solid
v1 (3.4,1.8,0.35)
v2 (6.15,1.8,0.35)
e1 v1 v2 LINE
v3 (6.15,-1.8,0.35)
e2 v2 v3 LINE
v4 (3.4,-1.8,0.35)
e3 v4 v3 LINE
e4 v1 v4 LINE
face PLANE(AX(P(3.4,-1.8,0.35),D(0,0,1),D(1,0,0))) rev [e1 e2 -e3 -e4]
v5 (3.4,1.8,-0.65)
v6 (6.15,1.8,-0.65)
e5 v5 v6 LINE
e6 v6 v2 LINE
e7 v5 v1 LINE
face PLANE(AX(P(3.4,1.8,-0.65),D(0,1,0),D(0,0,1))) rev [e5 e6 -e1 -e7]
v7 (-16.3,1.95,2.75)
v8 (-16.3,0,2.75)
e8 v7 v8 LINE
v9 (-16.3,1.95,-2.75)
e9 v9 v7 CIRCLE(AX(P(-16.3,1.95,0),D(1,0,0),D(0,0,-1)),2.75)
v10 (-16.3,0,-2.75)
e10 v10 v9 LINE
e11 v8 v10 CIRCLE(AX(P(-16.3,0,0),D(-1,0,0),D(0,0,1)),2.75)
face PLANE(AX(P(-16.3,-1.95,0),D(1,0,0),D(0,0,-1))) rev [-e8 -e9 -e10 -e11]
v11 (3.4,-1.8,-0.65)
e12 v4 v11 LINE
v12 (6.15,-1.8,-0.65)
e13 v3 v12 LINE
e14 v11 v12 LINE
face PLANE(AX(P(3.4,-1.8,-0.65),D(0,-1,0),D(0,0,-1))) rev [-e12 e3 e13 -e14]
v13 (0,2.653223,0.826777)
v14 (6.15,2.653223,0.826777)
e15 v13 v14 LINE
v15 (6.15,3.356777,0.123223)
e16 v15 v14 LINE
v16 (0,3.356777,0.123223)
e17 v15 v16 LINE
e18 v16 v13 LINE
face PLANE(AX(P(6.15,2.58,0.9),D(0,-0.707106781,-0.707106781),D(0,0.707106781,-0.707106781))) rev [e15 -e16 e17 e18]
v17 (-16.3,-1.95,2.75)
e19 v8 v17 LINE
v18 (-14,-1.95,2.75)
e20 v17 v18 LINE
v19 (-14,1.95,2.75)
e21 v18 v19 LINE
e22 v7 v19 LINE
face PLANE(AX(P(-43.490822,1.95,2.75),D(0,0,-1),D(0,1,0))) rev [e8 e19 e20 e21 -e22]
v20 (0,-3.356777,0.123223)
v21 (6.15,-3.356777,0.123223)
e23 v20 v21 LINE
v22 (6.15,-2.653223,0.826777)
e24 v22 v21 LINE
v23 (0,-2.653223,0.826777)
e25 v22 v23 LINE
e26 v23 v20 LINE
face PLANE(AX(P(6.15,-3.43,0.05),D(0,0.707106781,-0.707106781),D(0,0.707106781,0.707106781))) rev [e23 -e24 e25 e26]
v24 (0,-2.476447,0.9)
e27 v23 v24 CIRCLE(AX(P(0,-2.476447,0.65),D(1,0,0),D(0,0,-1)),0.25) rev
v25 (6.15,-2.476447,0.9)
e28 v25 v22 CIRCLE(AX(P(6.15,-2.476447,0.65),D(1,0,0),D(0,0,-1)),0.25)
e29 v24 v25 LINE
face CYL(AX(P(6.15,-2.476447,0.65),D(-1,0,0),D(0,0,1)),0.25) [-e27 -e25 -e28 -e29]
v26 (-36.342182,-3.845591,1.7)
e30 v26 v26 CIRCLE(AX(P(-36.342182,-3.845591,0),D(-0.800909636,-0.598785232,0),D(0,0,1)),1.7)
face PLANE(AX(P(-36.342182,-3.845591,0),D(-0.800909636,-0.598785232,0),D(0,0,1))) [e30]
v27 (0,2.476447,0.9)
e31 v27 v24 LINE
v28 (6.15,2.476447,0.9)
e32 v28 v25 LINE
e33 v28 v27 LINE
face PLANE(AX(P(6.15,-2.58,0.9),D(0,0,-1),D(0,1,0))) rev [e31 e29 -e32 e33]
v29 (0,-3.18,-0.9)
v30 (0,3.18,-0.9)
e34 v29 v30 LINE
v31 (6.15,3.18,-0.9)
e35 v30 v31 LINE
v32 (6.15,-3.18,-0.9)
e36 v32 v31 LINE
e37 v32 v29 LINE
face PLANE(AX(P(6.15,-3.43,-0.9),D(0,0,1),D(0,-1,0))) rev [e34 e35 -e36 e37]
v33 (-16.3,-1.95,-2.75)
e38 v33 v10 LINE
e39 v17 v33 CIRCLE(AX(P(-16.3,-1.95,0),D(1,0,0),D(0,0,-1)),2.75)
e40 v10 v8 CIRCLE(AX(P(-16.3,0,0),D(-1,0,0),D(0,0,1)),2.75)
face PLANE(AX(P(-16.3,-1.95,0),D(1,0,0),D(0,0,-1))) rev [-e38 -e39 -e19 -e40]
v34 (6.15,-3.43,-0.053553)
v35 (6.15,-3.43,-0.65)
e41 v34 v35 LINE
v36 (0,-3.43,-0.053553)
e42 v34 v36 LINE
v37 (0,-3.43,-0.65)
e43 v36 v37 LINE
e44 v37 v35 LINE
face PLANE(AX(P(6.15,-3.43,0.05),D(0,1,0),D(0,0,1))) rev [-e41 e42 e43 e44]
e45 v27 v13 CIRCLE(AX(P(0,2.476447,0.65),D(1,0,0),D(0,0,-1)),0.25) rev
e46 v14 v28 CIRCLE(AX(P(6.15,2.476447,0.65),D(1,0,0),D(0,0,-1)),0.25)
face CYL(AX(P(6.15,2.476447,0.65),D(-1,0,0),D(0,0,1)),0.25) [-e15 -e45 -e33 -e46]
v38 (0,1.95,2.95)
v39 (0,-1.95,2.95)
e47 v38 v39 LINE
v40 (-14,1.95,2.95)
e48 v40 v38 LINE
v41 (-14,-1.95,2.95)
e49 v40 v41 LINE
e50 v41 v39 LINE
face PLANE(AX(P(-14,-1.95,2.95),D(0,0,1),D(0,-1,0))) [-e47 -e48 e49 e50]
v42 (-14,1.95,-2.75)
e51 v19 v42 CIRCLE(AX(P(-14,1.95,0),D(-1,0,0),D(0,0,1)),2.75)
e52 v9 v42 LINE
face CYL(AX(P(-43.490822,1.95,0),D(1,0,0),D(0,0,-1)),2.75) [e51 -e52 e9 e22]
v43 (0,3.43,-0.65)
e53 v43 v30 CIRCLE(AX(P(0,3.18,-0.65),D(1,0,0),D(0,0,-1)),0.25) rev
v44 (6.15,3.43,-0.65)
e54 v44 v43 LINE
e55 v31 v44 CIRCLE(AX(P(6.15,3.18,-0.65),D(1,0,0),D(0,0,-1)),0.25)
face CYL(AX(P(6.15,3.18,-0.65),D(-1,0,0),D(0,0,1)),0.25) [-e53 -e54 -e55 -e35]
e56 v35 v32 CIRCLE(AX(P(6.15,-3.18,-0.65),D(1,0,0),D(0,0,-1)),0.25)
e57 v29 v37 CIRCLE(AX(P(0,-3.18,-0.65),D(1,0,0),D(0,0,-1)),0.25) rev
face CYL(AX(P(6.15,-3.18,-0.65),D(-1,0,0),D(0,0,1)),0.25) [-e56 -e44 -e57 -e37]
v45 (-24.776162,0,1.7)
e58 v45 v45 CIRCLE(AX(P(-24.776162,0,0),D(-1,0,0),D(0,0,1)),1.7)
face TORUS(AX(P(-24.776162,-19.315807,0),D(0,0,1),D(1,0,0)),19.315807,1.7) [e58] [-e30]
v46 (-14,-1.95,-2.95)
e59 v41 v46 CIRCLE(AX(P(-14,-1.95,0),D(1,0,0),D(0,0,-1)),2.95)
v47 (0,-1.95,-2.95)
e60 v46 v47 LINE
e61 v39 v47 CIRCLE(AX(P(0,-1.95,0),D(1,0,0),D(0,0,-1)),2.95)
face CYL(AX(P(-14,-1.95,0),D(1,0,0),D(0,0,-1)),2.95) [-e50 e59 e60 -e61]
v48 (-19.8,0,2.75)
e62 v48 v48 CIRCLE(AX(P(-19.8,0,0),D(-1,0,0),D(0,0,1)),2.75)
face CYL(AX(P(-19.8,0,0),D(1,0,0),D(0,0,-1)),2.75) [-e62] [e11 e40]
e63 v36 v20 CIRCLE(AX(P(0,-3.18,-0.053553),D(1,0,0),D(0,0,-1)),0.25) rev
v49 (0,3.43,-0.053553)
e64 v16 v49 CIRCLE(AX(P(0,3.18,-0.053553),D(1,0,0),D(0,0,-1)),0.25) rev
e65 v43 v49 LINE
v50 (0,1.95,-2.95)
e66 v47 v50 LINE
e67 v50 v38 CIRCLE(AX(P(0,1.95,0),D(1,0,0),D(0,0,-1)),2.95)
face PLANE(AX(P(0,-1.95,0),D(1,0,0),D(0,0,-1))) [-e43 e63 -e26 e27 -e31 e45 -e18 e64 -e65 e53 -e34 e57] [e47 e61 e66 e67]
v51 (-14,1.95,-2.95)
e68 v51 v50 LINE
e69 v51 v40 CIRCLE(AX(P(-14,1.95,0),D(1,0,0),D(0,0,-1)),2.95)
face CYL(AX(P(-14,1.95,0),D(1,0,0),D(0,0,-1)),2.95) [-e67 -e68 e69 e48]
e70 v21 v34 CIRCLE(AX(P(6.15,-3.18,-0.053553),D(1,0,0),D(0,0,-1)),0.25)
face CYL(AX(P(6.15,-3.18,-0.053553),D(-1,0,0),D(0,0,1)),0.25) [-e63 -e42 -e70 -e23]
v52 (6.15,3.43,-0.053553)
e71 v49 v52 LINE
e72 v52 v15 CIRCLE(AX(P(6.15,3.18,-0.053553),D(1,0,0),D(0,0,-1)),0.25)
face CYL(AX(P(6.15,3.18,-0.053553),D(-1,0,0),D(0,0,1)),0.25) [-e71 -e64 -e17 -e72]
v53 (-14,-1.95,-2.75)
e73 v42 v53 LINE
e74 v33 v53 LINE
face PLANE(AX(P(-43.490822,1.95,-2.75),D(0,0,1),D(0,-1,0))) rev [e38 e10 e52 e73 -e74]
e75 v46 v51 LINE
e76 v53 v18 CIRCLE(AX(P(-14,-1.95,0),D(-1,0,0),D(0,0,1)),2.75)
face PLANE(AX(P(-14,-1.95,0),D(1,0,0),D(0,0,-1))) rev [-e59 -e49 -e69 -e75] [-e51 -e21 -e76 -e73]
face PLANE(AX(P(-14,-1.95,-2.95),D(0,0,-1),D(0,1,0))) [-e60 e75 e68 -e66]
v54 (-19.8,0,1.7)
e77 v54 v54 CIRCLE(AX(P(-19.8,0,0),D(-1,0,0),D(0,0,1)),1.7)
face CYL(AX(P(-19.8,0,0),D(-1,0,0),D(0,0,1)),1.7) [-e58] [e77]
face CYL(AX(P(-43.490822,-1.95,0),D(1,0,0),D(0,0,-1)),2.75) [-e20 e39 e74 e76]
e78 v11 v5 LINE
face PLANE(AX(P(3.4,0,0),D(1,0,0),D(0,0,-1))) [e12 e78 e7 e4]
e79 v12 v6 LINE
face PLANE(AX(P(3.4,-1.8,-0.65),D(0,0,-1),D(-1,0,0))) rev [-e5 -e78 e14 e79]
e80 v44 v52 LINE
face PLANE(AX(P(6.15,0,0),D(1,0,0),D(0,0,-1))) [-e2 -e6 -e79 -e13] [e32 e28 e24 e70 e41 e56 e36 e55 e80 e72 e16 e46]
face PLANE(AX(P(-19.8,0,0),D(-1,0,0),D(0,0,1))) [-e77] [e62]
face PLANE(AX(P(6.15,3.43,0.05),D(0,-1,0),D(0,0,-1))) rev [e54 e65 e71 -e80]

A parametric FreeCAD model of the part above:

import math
import FreeCAD as App
import Part
import Sketcher

V = App.Vector
Q = App.Units.Quantity


def edges_at(feature, points):
    """Names of the edges that pass closest to the given points."""
    edges = feature.Shape.Edges
    near = lambda p: min(range(len(edges)), key=lambda i: edges[i].distToShape(Part.Vertex(*p))[0])
    return sorted({f"Edge{near(p) + 1}" for p in points})

doc = App.newDocument("Part")
body = doc.addObject("PartDesign::Body", "Body")

sketch1 = body.newObject("Sketcher::SketchObject", "Sketch")
sketch1.AttachmentSupport = (doc.getObject("YZ_Plane"), [""])
sketch1.MapMode = "FlatFace"
sketch1.addGeometry([
    Part.LineSegment(V(1.95, 2.95, 0), V(-1.95, 2.95, 0)),
    Part.ArcOfCircle(Part.Circle(V(-1.95, 0, 0), V(0, 0, 1), 2.95), math.radians(90), math.radians(270)),
    Part.LineSegment(V(-1.95, -2.95, 0), V(1.95, -2.95, 0)),
    Part.ArcOfCircle(Part.Circle(V(1.95, 0, 0), V(0, 0, 1), 2.95), math.radians(-90), math.radians(90)),
], False)
sketch1.addConstraint([
    Sketcher.Constraint("Tangent", 0, 2, 1, 1),
    Sketcher.Constraint("Tangent", 1, 2, 2, 1),
    Sketcher.Constraint("Tangent", 2, 2, 3, 1),
    Sketcher.Constraint("Tangent", 3, 2, 0, 1),
    Sketcher.Constraint("Horizontal", 0),
    Sketcher.Constraint("Horizontal", 2),
    Sketcher.Constraint("Symmetric", 1, 3, 3, 3, -1, 1),
    Sketcher.Constraint("Radius", 1, Q("2.95 mm")),
    Sketcher.Constraint("DistanceX", 0, 2, 0, 1, Q("3.9 mm")),
])
pad1 = body.newObject("PartDesign::Pad", "Pad")
pad1.Profile = sketch1
pad1.Length = 14
pad1.Reversed = True

sketch2 = body.newObject("Sketcher::SketchObject", "Sketch001")
sketch2.AttachmentSupport = (doc.getObject("YZ_Plane"), [""])
sketch2.MapMode = "FlatFace"
sketch2.AttachmentOffset = App.Placement(V(0, 0, -14), App.Rotation())
sketch2.addGeometry([
    Part.LineSegment(V(-1.95, 2.75, 0), V(1.95, 2.75, 0)),
    Part.ArcOfCircle(Part.Circle(V(1.95, 0, 0), V(0, 0, 1), 2.75), math.radians(-90), math.radians(90)),
    Part.LineSegment(V(1.95, -2.75, 0), V(-1.95, -2.75, 0)),
    Part.ArcOfCircle(Part.Circle(V(-1.95, 0, 0), V(0, 0, 1), 2.75), math.radians(90), math.radians(270)),
], False)
sketch2.addConstraint([
    Sketcher.Constraint("Tangent", 0, 2, 1, 2),
    Sketcher.Constraint("Tangent", 1, 1, 2, 1),
    Sketcher.Constraint("Tangent", 2, 2, 3, 2),
    Sketcher.Constraint("Tangent", 3, 1, 0, 1),
    Sketcher.Constraint("Horizontal", 0),
    Sketcher.Constraint("Horizontal", 2),
    Sketcher.Constraint("Symmetric", 1, 3, 3, 3, -1, 1),
    Sketcher.Constraint("Radius", 1, Q("2.75 mm")),
    Sketcher.Constraint("DistanceX", 0, 1, 0, 2, Q("3.9 mm")),
])
pad2 = body.newObject("PartDesign::Pad", "Pad001")
pad2.Profile = sketch2
pad2.Length = 2.3
pad2.Reversed = True

sketch3 = body.newObject("Sketcher::SketchObject", "Sketch002")
sketch3.AttachmentSupport = (doc.getObject("YZ_Plane"), [""])
sketch3.MapMode = "FlatFace"
sketch3.AttachmentOffset = App.Placement(V(0, 0, -16.3), App.Rotation())
sketch3.addGeometry(Part.Circle(V(0, 0, 0), V(0, 0, 1), 2.75), False)
sketch3.addConstraint([
    Sketcher.Constraint("Coincident", 0, 3, -1, 1),
    Sketcher.Constraint("Diameter", 0, Q("5.5 mm")),
])
pad3 = body.newObject("PartDesign::Pad", "Pad002")
pad3.Profile = sketch3
pad3.Length = 3.5
pad3.Reversed = True

sketch4 = body.newObject("Sketcher::SketchObject", "Sketch003")
sketch4.AttachmentSupport = (doc.getObject("YZ_Plane"), [""])
sketch4.MapMode = "FlatFace"
sketch4.AttachmentOffset = App.Placement(V(0, 0, -19.8), App.Rotation())
sketch4.addGeometry(Part.Circle(V(0, 0, 0), V(0, 0, 1), 1.7), False)
sketch4.addConstraint([
    Sketcher.Constraint("Coincident", 0, 3, -1, 1),
    Sketcher.Constraint("Diameter", 0, Q("3.4 mm")),
])

sketch5 = body.newObject("Sketcher::SketchObject", "Sketch004")
sketch5.AttachmentSupport = (doc.getObject("XY_Plane"), [""])
sketch5.MapMode = "FlatFace"
sketch5.addGeometry([
    Part.LineSegment(V(-19.8, 0, 0), V(-24.776162, 0, 0)),
    Part.ArcOfCircle(Part.Circle(V(-24.776162, -19.315807, 0), V(0, 0, 1), 19.315807), math.radians(90), math.radians(126.782946)),
], False)
sketch5.addConstraint([
    Sketcher.Constraint("Tangent", 0, 2, 1, 1),
    Sketcher.Constraint("Horizontal", 0),
    Sketcher.Constraint("PointOnObject", 0, 1, -1),
    Sketcher.Constraint("DistanceX", 0, 1, -1, 1, Q("19.8 mm")),
    Sketcher.Constraint("Radius", 1, Q("19.315807 mm")),
    Sketcher.Constraint("DistanceX", 0, 2, 0, 1, Q("4.976162 mm")),
    Sketcher.Constraint("DistanceX", 1, 2, -1, 1, Q("36.342182 mm")),
])
doc.recompute()

additivepipe = body.newObject("PartDesign::AdditivePipe", "AdditivePipe")
additivepipe.Profile = sketch4
additivepipe.Spine = (sketch5, ["Edge1", "Edge2"])

sketch6 = body.newObject("Sketcher::SketchObject", "Sketch005")
sketch6.AttachmentSupport = (doc.getObject("YZ_Plane"), [""])
sketch6.MapMode = "FlatFace"
sketch6.addGeometry([
    Part.LineSegment(V(-2.58, 0.9, 0), V(-3.43, 0.05, 0)),
    Part.LineSegment(V(-3.43, 0.05, 0), V(-3.43, -0.9, 0)),
    Part.LineSegment(V(-3.43, -0.9, 0), V(3.43, -0.9, 0)),
    Part.LineSegment(V(3.43, -0.9, 0), V(3.43, 0.05, 0)),
    Part.LineSegment(V(3.43, 0.05, 0), V(2.58, 0.9, 0)),
    Part.LineSegment(V(2.58, 0.9, 0), V(-2.58, 0.9, 0)),
], False)
sketch6.addConstraint([
    Sketcher.Constraint("Coincident", 0, 2, 1, 1),
    Sketcher.Constraint("Coincident", 1, 2, 2, 1),
    Sketcher.Constraint("Coincident", 2, 2, 3, 1),
    Sketcher.Constraint("Coincident", 3, 2, 4, 1),
    Sketcher.Constraint("Coincident", 4, 2, 5, 1),
    Sketcher.Constraint("Coincident", 5, 2, 0, 1),
    Sketcher.Constraint("Vertical", 1),
    Sketcher.Constraint("Horizontal", 2),
    Sketcher.Constraint("Vertical", 3),
    Sketcher.Constraint("Horizontal", 5),
    Sketcher.Constraint("Symmetric", 0, 2, 3, 2, -2),
    Sketcher.Constraint("Perpendicular", 0, 4),
    Sketcher.Constraint("Equal", 0, 4),
    Sketcher.Constraint("DistanceX", 2, 1, 2, 2, Q("6.86 mm")),
    Sketcher.Constraint("DistanceX", 5, 2, 5, 1, Q("5.16 mm")),
    Sketcher.Constraint("DistanceY", 1, 2, 1, 1, Q("0.95 mm")),
    Sketcher.Constraint("DistanceY", 1, 2, -1, 1, Q("0.9 mm")),
])
pad4 = body.newObject("PartDesign::Pad", "Pad003")
pad4.Profile = sketch6
pad4.Length = 6.15
doc.recompute()

fillet = body.newObject("PartDesign::Fillet", "Fillet")
fillet.Base = (pad4, edges_at(pad4, [
    (3.075, 3.43, -0.9),
    (3.075, 3.43, 0.05),
    (3.075, 2.58, 0.9),
    (3.075, -2.58, 0.9),
    (3.075, -3.43, 0.05),
    (3.075, -3.43, -0.9),
]))
fillet.Radius = 0.25

sketch7 = body.newObject("Sketcher::SketchObject", "Sketch006")
sketch7.AttachmentSupport = (doc.getObject("YZ_Plane"), [""])
sketch7.MapMode = "FlatFace"
sketch7.AttachmentOffset = App.Placement(V(0, 0, 6.15), App.Rotation())
sketch7.addGeometry([
    Part.LineSegment(V(1.8, 0.35, 0), V(-1.8, 0.35, 0)),
    Part.LineSegment(V(-1.8, 0.35, 0), V(-1.8, -0.65, 0)),
    Part.LineSegment(V(-1.8, -0.65, 0), V(1.8, -0.65, 0)),
    Part.LineSegment(V(1.8, -0.65, 0), V(1.8, 0.35, 0)),
], False)
sketch7.addConstraint([
    Sketcher.Constraint("Coincident", 0, 2, 1, 1),
    Sketcher.Constraint("Coincident", 1, 2, 2, 1),
    Sketcher.Constraint("Coincident", 2, 2, 3, 1),
    Sketcher.Constraint("Coincident", 3, 2, 0, 1),
    Sketcher.Constraint("Horizontal", 0),
    Sketcher.Constraint("Vertical", 1),
    Sketcher.Constraint("Horizontal", 2),
    Sketcher.Constraint("Vertical", 3),
    Sketcher.Constraint("DistanceY", 1, 2, 1, 1, Q("1 mm")),
    Sketcher.Constraint("DistanceX", 0, 2, 0, 1, Q("3.6 mm")),
    Sketcher.Constraint("DistanceX", 0, 2, -1, 1, Q("1.8 mm")),
    Sketcher.Constraint("DistanceY", -1, 1, 0, 2, Q("0.35 mm")),
])
pocket1 = body.newObject("PartDesign::Pocket", "Pocket")
pocket1.Profile = sketch7
pocket1.Length = 2.75

doc.recompute()
